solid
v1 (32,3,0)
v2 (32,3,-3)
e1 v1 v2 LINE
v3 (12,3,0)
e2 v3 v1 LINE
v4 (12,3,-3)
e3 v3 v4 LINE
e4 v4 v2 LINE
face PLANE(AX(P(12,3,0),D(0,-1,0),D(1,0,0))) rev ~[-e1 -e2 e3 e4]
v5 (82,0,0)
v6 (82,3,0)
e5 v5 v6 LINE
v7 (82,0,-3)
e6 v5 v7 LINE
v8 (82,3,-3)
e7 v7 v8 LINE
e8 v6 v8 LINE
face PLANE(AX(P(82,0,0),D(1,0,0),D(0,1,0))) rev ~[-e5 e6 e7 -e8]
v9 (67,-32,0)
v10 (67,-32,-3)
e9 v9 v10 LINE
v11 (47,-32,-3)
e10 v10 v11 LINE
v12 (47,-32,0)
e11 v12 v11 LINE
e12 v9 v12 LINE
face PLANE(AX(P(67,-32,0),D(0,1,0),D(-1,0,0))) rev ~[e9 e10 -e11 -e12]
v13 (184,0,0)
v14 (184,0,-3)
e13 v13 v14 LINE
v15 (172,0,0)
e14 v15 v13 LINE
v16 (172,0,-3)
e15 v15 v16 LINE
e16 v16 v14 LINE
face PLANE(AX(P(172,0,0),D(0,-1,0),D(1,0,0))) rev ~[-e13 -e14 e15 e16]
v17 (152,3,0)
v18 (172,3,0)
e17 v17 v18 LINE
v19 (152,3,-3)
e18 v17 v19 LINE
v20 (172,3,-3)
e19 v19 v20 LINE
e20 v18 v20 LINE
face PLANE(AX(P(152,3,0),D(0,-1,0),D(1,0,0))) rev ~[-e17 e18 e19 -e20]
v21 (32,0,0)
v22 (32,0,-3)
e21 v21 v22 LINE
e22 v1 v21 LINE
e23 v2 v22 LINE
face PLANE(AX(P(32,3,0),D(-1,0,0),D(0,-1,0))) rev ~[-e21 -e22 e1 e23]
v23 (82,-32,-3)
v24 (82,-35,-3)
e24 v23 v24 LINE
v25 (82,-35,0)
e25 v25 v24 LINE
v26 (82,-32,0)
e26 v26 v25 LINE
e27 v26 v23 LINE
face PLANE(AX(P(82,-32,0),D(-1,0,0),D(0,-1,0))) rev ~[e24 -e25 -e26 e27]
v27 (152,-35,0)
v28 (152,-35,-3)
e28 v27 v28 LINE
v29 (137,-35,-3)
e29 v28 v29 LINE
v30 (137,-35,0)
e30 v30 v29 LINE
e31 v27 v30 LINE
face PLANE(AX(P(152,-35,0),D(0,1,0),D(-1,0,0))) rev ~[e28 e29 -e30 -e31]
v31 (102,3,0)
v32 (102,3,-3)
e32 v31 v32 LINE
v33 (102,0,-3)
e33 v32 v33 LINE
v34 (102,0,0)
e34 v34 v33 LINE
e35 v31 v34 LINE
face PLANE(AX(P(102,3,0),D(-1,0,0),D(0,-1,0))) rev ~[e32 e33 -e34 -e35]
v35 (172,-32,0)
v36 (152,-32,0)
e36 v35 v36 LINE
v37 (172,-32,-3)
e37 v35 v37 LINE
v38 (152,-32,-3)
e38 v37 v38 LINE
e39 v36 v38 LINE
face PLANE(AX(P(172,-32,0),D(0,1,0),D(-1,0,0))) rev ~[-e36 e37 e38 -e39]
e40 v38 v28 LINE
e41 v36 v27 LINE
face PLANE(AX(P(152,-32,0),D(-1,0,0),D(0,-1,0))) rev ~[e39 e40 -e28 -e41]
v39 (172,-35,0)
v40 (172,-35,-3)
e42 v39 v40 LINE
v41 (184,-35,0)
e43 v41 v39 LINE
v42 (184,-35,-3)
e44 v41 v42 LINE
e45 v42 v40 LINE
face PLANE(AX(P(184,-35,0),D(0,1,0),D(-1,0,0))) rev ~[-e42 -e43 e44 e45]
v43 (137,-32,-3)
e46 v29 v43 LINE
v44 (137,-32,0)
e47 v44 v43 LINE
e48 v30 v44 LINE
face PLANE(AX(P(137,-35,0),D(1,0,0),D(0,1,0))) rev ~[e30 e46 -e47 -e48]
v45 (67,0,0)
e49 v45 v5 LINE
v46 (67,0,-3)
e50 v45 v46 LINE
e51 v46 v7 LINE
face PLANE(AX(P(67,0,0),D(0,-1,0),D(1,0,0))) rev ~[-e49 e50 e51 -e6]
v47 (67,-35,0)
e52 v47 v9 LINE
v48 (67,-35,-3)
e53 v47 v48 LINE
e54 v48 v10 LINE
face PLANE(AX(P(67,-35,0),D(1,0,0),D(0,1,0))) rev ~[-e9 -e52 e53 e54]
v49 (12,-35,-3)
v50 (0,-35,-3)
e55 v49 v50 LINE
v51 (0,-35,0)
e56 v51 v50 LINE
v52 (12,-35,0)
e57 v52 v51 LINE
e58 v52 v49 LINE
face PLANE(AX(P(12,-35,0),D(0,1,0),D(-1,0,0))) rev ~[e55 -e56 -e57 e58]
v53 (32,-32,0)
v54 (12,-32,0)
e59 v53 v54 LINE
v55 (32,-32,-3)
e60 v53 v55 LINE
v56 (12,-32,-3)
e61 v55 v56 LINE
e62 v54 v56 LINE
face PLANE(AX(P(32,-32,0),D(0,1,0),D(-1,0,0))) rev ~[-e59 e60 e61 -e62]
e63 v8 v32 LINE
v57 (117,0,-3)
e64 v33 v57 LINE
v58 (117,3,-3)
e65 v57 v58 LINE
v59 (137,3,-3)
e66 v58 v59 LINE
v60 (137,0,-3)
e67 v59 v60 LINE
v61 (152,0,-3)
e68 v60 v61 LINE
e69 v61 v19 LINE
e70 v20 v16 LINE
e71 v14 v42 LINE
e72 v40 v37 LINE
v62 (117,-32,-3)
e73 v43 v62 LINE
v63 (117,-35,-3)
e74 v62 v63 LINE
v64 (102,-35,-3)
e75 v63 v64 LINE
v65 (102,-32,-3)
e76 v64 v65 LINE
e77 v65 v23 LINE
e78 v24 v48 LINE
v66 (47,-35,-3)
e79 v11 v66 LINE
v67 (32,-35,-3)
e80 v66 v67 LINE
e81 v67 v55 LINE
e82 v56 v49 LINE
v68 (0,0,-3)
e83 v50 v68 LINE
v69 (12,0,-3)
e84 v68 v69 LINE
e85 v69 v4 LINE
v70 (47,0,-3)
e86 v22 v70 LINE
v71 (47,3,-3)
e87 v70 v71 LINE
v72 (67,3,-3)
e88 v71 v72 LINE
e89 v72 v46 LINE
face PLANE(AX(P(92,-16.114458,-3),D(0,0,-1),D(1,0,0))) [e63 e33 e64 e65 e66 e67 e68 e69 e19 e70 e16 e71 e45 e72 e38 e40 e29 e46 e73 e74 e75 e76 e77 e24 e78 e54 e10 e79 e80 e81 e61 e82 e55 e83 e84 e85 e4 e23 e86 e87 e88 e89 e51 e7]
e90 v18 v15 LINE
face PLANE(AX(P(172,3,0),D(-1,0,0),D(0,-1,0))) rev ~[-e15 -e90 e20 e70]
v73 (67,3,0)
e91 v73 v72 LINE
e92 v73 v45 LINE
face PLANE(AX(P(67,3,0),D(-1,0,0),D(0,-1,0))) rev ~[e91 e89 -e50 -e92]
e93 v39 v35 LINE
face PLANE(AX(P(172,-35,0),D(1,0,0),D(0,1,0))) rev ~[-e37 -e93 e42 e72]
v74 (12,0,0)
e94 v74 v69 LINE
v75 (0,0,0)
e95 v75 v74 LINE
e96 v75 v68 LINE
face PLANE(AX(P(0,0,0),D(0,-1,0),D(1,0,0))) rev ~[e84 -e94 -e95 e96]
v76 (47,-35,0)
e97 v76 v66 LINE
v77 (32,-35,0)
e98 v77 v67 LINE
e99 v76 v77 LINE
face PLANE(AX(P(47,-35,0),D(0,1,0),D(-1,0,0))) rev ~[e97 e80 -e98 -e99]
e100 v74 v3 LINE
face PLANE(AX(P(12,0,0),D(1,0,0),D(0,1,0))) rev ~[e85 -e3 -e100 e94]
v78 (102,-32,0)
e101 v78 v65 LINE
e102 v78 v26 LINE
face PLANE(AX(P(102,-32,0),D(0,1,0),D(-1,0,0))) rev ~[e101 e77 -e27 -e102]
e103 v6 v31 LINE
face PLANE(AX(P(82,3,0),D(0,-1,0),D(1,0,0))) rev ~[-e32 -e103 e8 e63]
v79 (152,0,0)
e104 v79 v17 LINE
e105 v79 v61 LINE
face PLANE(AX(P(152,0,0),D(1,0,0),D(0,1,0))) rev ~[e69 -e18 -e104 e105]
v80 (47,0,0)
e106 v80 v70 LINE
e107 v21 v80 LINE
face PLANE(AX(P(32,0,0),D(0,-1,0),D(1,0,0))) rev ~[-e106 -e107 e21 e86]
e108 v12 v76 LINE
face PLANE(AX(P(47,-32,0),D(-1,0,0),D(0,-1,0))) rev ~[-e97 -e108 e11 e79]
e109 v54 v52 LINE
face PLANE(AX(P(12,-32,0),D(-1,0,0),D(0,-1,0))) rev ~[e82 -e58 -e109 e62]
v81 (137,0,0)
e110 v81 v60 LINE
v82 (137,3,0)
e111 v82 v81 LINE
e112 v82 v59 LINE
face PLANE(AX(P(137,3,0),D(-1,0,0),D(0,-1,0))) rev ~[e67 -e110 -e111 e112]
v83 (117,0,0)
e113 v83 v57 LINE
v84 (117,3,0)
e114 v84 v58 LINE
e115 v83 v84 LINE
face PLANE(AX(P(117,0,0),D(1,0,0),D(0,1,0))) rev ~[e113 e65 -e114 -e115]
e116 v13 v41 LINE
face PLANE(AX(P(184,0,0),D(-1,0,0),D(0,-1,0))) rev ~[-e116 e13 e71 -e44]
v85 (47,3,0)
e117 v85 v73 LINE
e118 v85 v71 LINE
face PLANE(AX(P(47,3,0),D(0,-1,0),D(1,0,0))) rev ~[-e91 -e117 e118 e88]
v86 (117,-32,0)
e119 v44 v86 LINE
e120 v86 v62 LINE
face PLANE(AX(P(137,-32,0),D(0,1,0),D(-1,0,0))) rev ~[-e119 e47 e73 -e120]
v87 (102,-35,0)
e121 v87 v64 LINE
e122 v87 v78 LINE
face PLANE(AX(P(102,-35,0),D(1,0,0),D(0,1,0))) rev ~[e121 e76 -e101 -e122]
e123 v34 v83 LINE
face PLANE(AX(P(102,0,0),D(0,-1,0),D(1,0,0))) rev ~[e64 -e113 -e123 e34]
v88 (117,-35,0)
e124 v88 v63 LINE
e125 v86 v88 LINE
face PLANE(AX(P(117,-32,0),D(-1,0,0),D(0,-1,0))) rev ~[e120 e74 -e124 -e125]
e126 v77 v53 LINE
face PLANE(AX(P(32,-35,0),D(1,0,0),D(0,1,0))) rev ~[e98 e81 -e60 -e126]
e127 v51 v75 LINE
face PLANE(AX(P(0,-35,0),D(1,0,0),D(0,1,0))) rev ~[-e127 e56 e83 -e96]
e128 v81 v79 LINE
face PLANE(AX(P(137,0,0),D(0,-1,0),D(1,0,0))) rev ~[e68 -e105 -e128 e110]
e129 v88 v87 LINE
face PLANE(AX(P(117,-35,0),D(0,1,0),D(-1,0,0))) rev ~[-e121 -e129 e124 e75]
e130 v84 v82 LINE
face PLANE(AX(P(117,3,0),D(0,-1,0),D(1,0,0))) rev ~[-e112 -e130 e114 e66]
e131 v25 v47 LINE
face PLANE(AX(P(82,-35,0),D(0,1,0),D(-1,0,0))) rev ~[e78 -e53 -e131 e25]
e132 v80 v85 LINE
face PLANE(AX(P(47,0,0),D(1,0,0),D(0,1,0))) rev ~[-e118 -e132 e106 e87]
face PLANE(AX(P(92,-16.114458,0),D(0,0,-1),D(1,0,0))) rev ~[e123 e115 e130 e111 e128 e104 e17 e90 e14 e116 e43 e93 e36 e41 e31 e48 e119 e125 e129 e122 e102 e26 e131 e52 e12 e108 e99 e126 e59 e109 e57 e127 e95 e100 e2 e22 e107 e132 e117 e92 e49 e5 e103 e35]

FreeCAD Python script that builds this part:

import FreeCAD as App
import Part
import Sketcher
Q = App.Units.Quantity

doc = App.newDocument("Part")
body = doc.addObject("PartDesign::Body", "Body")

sketch1 = body.newObject("Sketcher::SketchObject", "Sketch")
sketch1.AttachmentSupport = (doc.getObject("XY_Plane"), [""])
sketch1.MapMode = "FlatFace"
sketch1.addGeometry(Part.LineSegment(App.Vector(32, 0, 0), App.Vector(47, 0, 0)), False)
sketch1.addGeometry(Part.LineSegment(App.Vector(47, 0, 0), App.Vector(47, 3, 0)), False)
sketch1.addGeometry(Part.LineSegment(App.Vector(47, 3, 0), App.Vector(67, 3, 0)), False)
sketch1.addGeometry(Part.LineSegment(App.Vector(67, 3, 0), App.Vector(67, 0, 0)), False)
sketch1.addGeometry(Part.LineSegment(App.Vector(67, 0, 0), App.Vector(82, 0, 0)), False)
sketch1.addGeometry(Part.LineSegment(App.Vector(82, 0, 0), App.Vector(82, 3, 0)), False)
sketch1.addGeometry(Part.LineSegment(App.Vector(82, 3, 0), App.Vector(102, 3, 0)), False)
sketch1.addGeometry(Part.LineSegment(App.Vector(102, 3, 0), App.Vector(102, 0, 0)), False)
sketch1.addGeometry(Part.LineSegment(App.Vector(102, 0, 0), App.Vector(117, 0, 0)), False)
sketch1.addGeometry(Part.LineSegment(App.Vector(117, 0, 0), App.Vector(117, 3, 0)), False)
sketch1.addGeometry(Part.LineSegment(App.Vector(117, 3, 0), App.Vector(137, 3, 0)), False)
sketch1.addGeometry(Part.LineSegment(App.Vector(137, 3, 0), App.Vector(137, 0, 0)), False)
sketch1.addGeometry(Part.LineSegment(App.Vector(137, 0, 0), App.Vector(152, 0, 0)), False)
sketch1.addGeometry(Part.LineSegment(App.Vector(152, 0, 0), App.Vector(152, 3, 0)), False)
sketch1.addGeometry(Part.LineSegment(App.Vector(152, 3, 0), App.Vector(172, 3, 0)), False)
sketch1.addGeometry(Part.LineSegment(App.Vector(172, 3, 0), App.Vector(172, 0, 0)), False)
sketch1.addGeometry(Part.LineSegment(App.Vector(172, 0, 0), App.Vector(184, 0, 0)), False)
sketch1.addGeometry(Part.LineSegment(App.Vector(184, 0, 0), App.Vector(184, -35, 0)), False)
sketch1.addGeometry(Part.LineSegment(App.Vector(184, -35, 0), App.Vector(172, -35, 0)), False)
sketch1.addGeometry(Part.LineSegment(App.Vector(172, -35, 0), App.Vector(172, -32, 0)), False)
sketch1.addGeometry(Part.LineSegment(App.Vector(172, -32, 0), App.Vector(152, -32, 0)), False)
sketch1.addGeometry(Part.LineSegment(App.Vector(152, -32, 0), App.Vector(152, -35, 0)), False)
sketch1.addGeometry(Part.LineSegment(App.Vector(152, -35, 0), App.Vector(137, -35, 0)), False)
sketch1.addGeometry(Part.LineSegment(App.Vector(137, -35, 0), App.Vector(137, -32, 0)), False)
sketch1.addGeometry(Part.LineSegment(App.Vector(137, -32, 0), App.Vector(117, -32, 0)), False)
sketch1.addGeometry(Part.LineSegment(App.Vector(117, -32, 0), App.Vector(117, -35, 0)), False)
sketch1.addGeometry(Part.LineSegment(App.Vector(117, -35, 0), App.Vector(102, -35, 0)), False)
sketch1.addGeometry(Part.LineSegment(App.Vector(102, -35, 0), App.Vector(102, -32, 0)), False)
sketch1.addGeometry(Part.LineSegment(App.Vector(102, -32, 0), App.Vector(82, -32, 0)), False)
sketch1.addGeometry(Part.LineSegment(App.Vector(82, -32, 0), App.Vector(82, -35, 0)), False)
sketch1.addGeometry(Part.LineSegment(App.Vector(82, -35, 0), App.Vector(67, -35, 0)), False)
sketch1.addGeometry(Part.LineSegment(App.Vector(67, -35, 0), App.Vector(67, -32, 0)), False)
sketch1.addGeometry(Part.LineSegment(App.Vector(67, -32, 0), App.Vector(47, -32, 0)), False)
sketch1.addGeometry(Part.LineSegment(App.Vector(47, -32, 0), App.Vector(47, -35, 0)), False)
sketch1.addGeometry(Part.LineSegment(App.Vector(47, -35, 0), App.Vector(32, -35, 0)), False)
sketch1.addGeometry(Part.LineSegment(App.Vector(32, -35, 0), App.Vector(32, -32, 0)), False)
sketch1.addGeometry(Part.LineSegment(App.Vector(32, -32, 0), App.Vector(12, -32, 0)), False)
sketch1.addGeometry(Part.LineSegment(App.Vector(12, -32, 0), App.Vector(12, -35, 0)), False)
sketch1.addGeometry(Part.LineSegment(App.Vector(12, -35, 0), App.Vector(0, -35, 0)), False)
sketch1.addGeometry(Part.LineSegment(App.Vector(0, -35, 0), App.Vector(0, 0, 0)), False)
sketch1.addGeometry(Part.LineSegment(App.Vector(0, 0, 0), App.Vector(12, 0, 0)), False)
sketch1.addGeometry(Part.LineSegment(App.Vector(12, 0, 0), App.Vector(12, 3, 0)), False)
sketch1.addGeometry(Part.LineSegment(App.Vector(12, 3, 0), App.Vector(32, 3, 0)), False)
sketch1.addGeometry(Part.LineSegment(App.Vector(32, 3, 0), App.Vector(32, 0, 0)), False)
sketch1.addConstraint(Sketcher.Constraint("Coincident", 0, 2, 1, 1))
sketch1.addConstraint(Sketcher.Constraint("Coincident", 1, 2, 2, 1))
sketch1.addConstraint(Sketcher.Constraint("Coincident", 2, 2, 3, 1))
sketch1.addConstraint(Sketcher.Constraint("Coincident", 3, 2, 4, 1))
sketch1.addConstraint(Sketcher.Constraint("Coincident", 4, 2, 5, 1))
sketch1.addConstraint(Sketcher.Constraint("Coincident", 5, 2, 6, 1))
sketch1.addConstraint(Sketcher.Constraint("Coincident", 6, 2, 7, 1))
sketch1.addConstraint(Sketcher.Constraint("Coincident", 7, 2, 8, 1))
sketch1.addConstraint(Sketcher.Constraint("Coincident", 8, 2, 9, 1))
sketch1.addConstraint(Sketcher.Constraint("Coincident", 9, 2, 10, 1))
sketch1.addConstraint(Sketcher.Constraint("Coincident", 10, 2, 11, 1))
sketch1.addConstraint(Sketcher.Constraint("Coincident", 11, 2, 12, 1))
sketch1.addConstraint(Sketcher.Constraint("Coincident", 12, 2, 13, 1))
sketch1.addConstraint(Sketcher.Constraint("Coincident", 13, 2, 14, 1))
sketch1.addConstraint(Sketcher.Constraint("Coincident", 14, 2, 15, 1))
sketch1.addConstraint(Sketcher.Constraint("Coincident", 15, 2, 16, 1))
sketch1.addConstraint(Sketcher.Constraint("Coincident", 16, 2, 17, 1))
sketch1.addConstraint(Sketcher.Constraint("Coincident", 17, 2, 18, 1))
sketch1.addConstraint(Sketcher.Constraint("Coincident", 18, 2, 19, 1))
sketch1.addConstraint(Sketcher.Constraint("Coincident", 19, 2, 20, 1))
sketch1.addConstraint(Sketcher.Constraint("Coincident", 20, 2, 21, 1))
sketch1.addConstraint(Sketcher.Constraint("Coincident", 21, 2, 22, 1))
sketch1.addConstraint(Sketcher.Constraint("Coincident", 22, 2, 23, 1))
sketch1.addConstraint(Sketcher.Constraint("Coincident", 23, 2, 24, 1))
sketch1.addConstraint(Sketcher.Constraint("Coincident", 24, 2, 25, 1))
sketch1.addConstraint(Sketcher.Constraint("Coincident", 25, 2, 26, 1))
sketch1.addConstraint(Sketcher.Constraint("Coincident", 26, 2, 27, 1))
sketch1.addConstraint(Sketcher.Constraint("Coincident", 27, 2, 28, 1))
sketch1.addConstraint(Sketcher.Constraint("Coincident", 28, 2, 29, 1))
sketch1.addConstraint(Sketcher.Constraint("Coincident", 29, 2, 30, 1))
sketch1.addConstraint(Sketcher.Constraint("Coincident", 30, 2, 31, 1))
sketch1.addConstraint(Sketcher.Constraint("Coincident", 31, 2, 32, 1))
sketch1.addConstraint(Sketcher.Constraint("Coincident", 32, 2, 33, 1))
sketch1.addConstraint(Sketcher.Constraint("Coincident", 33, 2, 34, 1))
sketch1.addConstraint(Sketcher.Constraint("Coincident", 34, 2, 35, 1))
sketch1.addConstraint(Sketcher.Constraint("Coincident", 35, 2, 36, 1))
sketch1.addConstraint(Sketcher.Constraint("Coincident", 36, 2, 37, 1))
sketch1.addConstraint(Sketcher.Constraint("Coincident", 37, 2, 38, 1))
sketch1.addConstraint(Sketcher.Constraint("Coincident", 38, 2, 39, 1))
sketch1.addConstraint(Sketcher.Constraint("Coincident", 39, 2, 40, 1))
sketch1.addConstraint(Sketcher.Constraint("Coincident", 40, 2, 41, 1))
sketch1.addConstraint(Sketcher.Constraint("Coincident", 41, 2, 42, 1))
sketch1.addConstraint(Sketcher.Constraint("Coincident", 42, 2, 43, 1))
sketch1.addConstraint(Sketcher.Constraint("Coincident", 43, 2, 0, 1))
sketch1.addConstraint(Sketcher.Constraint("Horizontal", 0))
sketch1.addConstraint(Sketcher.Constraint("Vertical", 1))
sketch1.addConstraint(Sketcher.Constraint("Horizontal", 2))
sketch1.addConstraint(Sketcher.Constraint("Vertical", 3))
sketch1.addConstraint(Sketcher.Constraint("Horizontal", 4))
sketch1.addConstraint(Sketcher.Constraint("Vertical", 5))
sketch1.addConstraint(Sketcher.Constraint("Horizontal", 6))
sketch1.addConstraint(Sketcher.Constraint("Vertical", 7))
sketch1.addConstraint(Sketcher.Constraint("Horizontal", 8))
sketch1.addConstraint(Sketcher.Constraint("Vertical", 9))
sketch1.addConstraint(Sketcher.Constraint("Horizontal", 10))
sketch1.addConstraint(Sketcher.Constraint("Vertical", 11))
sketch1.addConstraint(Sketcher.Constraint("Horizontal", 12))
sketch1.addConstraint(Sketcher.Constraint("Vertical", 13))
sketch1.addConstraint(Sketcher.Constraint("Horizontal", 14))
sketch1.addConstraint(Sketcher.Constraint("Vertical", 15))
sketch1.addConstraint(Sketcher.Constraint("Horizontal", 16))
sketch1.addConstraint(Sketcher.Constraint("Vertical", 17))
sketch1.addConstraint(Sketcher.Constraint("Horizontal", 18))
sketch1.addConstraint(Sketcher.Constraint("Vertical", 19))
sketch1.addConstraint(Sketcher.Constraint("Horizontal", 20))
sketch1.addConstraint(Sketcher.Constraint("Vertical", 21))
sketch1.addConstraint(Sketcher.Constraint("Horizontal", 22))
sketch1.addConstraint(Sketcher.Constraint("Vertical", 23))
sketch1.addConstraint(Sketcher.Constraint("Horizontal", 24))
sketch1.addConstraint(Sketcher.Constraint("Vertical", 25))
sketch1.addConstraint(Sketcher.Constraint("Horizontal", 26))
sketch1.addConstraint(Sketcher.Constraint("Vertical", 27))
sketch1.addConstraint(Sketcher.Constraint("Horizontal", 28))
sketch1.addConstraint(Sketcher.Constraint("Vertical", 29))
sketch1.addConstraint(Sketcher.Constraint("Horizontal", 30))
sketch1.addConstraint(Sketcher.Constraint("Vertical", 31))
sketch1.addConstraint(Sketcher.Constraint("Horizontal", 32))
sketch1.addConstraint(Sketcher.Constraint("Vertical", 33))
sketch1.addConstraint(Sketcher.Constraint("Horizontal", 34))
sketch1.addConstraint(Sketcher.Constraint("Vertical", 35))
sketch1.addConstraint(Sketcher.Constraint("Horizontal", 36))
sketch1.addConstraint(Sketcher.Constraint("Vertical", 37))
sketch1.addConstraint(Sketcher.Constraint("Horizontal", 38))
sketch1.addConstraint(Sketcher.Constraint("Vertical", 39))
sketch1.addConstraint(Sketcher.Constraint("Horizontal", 40))
sketch1.addConstraint(Sketcher.Constraint("Vertical", 41))
sketch1.addConstraint(Sketcher.Constraint("Horizontal", 42))
sketch1.addConstraint(Sketcher.Constraint("Vertical", 43))
sketch1.addConstraint(Sketcher.Constraint("Coincident", 39, 2, -1, 1))
sketch1.addConstraint(Sketcher.Constraint("PointOnObject", 0, 2, -1))
sketch1.addConstraint(Sketcher.Constraint("PointOnObject", 3, 2, -1))
sketch1.addConstraint(Sketcher.Constraint("PointOnObject", 7, 2, -1))
sketch1.addConstraint(Sketcher.Constraint("PointOnObject", 11, 2, -1))
sketch1.addConstraint(Sketcher.Constraint("PointOnObject", 15, 2, -1))
sketch1.addConstraint(Sketcher.Constraint("Horizontal", 2, 2, 5, 2))
sketch1.addConstraint(Sketcher.Constraint("Horizontal", 6, 2, 9, 2))
sketch1.addConstraint(Sketcher.Constraint("Horizontal", 10, 2, 13, 2))
sketch1.addConstraint(Sketcher.Constraint("Horizontal", 18, 2, 21, 2))
sketch1.addConstraint(Sketcher.Constraint("Horizontal", 20, 2, 23, 2))
sketch1.addConstraint(Sketcher.Constraint("Horizontal", 22, 2, 25, 2))
sketch1.addConstraint(Sketcher.Constraint("Horizontal", 24, 2, 27, 2))
sketch1.addConstraint(Sketcher.Constraint("Horizontal", 26, 2, 29, 2))
sketch1.addConstraint(Sketcher.Constraint("Horizontal", 28, 2, 31, 2))
sketch1.addConstraint(Sketcher.Constraint("Horizontal", 30, 2, 33, 2))
sketch1.addConstraint(Sketcher.Constraint("Horizontal", 32, 2, 35, 2))
sketch1.addConstraint(Sketcher.Constraint("Horizontal", 34, 2, 37, 2))
sketch1.addConstraint(Sketcher.Constraint("Horizontal", 14, 2, 41, 2))
sketch1.addConstraint(Sketcher.Constraint("Vertical", 15, 2, 18, 2))
sketch1.addConstraint(Sketcher.Constraint("Vertical", 13, 2, 20, 2))
sketch1.addConstraint(Sketcher.Constraint("Vertical", 11, 2, 22, 2))
sketch1.addConstraint(Sketcher.Constraint("Vertical", 9, 2, 24, 2))
sketch1.addConstraint(Sketcher.Constraint("Vertical", 7, 2, 26, 2))
sketch1.addConstraint(Sketcher.Constraint("Vertical", 5, 2, 28, 2))
sketch1.addConstraint(Sketcher.Constraint("Vertical", 3, 2, 30, 2))
sketch1.addConstraint(Sketcher.Constraint("Vertical", 1, 2, 32, 2))
sketch1.addConstraint(Sketcher.Constraint("Vertical", 37, 2, 40, 2))
sketch1.addConstraint(Sketcher.Constraint("Vertical", 35, 2, 42, 2))
sketch1.addConstraint(Sketcher.Constraint("Equal", 0, 4))
sketch1.addConstraint(Sketcher.Constraint("Equal", 2, 6))
sketch1.addConstraint(Sketcher.Constraint("Equal", 4, 8))
sketch1.addConstraint(Sketcher.Constraint("Equal", 6, 10))
sketch1.addConstraint(Sketcher.Constraint("Equal", 8, 12))
sketch1.addConstraint(Sketcher.Constraint("Equal", 10, 14))
sketch1.addConstraint(Sketcher.Constraint("Equal", 32, 36))
sketch1.addConstraint(Sketcher.Constraint("Equal", 18, 38))
sketch1.addConstraint(Sketcher.Constraint("Equal", 15, 19))
sketch1.addConstraint(Sketcher.Constraint("DistanceX", 0, 1, 0, 2, Q("15 mm")))
sketch1.addConstraint(Sketcher.Constraint("DistanceX", 2, 1, 2, 2, Q("20 mm")))
sketch1.addConstraint(Sketcher.Constraint("DistanceX", 16, 1, 16, 2, Q("12 mm")))
sketch1.addConstraint(Sketcher.Constraint("DistanceY", 1, 1, 1, 2, Q("3 mm")))
sketch1.addConstraint(Sketcher.Constraint("DistanceY", 17, 2, 17, 1, Q("35 mm")))
pad1 = body.newObject("PartDesign::Pad", "Pad")
pad1.Profile = sketch1
pad1.Length = 3
pad1.Reversed = True

doc.recompute()
